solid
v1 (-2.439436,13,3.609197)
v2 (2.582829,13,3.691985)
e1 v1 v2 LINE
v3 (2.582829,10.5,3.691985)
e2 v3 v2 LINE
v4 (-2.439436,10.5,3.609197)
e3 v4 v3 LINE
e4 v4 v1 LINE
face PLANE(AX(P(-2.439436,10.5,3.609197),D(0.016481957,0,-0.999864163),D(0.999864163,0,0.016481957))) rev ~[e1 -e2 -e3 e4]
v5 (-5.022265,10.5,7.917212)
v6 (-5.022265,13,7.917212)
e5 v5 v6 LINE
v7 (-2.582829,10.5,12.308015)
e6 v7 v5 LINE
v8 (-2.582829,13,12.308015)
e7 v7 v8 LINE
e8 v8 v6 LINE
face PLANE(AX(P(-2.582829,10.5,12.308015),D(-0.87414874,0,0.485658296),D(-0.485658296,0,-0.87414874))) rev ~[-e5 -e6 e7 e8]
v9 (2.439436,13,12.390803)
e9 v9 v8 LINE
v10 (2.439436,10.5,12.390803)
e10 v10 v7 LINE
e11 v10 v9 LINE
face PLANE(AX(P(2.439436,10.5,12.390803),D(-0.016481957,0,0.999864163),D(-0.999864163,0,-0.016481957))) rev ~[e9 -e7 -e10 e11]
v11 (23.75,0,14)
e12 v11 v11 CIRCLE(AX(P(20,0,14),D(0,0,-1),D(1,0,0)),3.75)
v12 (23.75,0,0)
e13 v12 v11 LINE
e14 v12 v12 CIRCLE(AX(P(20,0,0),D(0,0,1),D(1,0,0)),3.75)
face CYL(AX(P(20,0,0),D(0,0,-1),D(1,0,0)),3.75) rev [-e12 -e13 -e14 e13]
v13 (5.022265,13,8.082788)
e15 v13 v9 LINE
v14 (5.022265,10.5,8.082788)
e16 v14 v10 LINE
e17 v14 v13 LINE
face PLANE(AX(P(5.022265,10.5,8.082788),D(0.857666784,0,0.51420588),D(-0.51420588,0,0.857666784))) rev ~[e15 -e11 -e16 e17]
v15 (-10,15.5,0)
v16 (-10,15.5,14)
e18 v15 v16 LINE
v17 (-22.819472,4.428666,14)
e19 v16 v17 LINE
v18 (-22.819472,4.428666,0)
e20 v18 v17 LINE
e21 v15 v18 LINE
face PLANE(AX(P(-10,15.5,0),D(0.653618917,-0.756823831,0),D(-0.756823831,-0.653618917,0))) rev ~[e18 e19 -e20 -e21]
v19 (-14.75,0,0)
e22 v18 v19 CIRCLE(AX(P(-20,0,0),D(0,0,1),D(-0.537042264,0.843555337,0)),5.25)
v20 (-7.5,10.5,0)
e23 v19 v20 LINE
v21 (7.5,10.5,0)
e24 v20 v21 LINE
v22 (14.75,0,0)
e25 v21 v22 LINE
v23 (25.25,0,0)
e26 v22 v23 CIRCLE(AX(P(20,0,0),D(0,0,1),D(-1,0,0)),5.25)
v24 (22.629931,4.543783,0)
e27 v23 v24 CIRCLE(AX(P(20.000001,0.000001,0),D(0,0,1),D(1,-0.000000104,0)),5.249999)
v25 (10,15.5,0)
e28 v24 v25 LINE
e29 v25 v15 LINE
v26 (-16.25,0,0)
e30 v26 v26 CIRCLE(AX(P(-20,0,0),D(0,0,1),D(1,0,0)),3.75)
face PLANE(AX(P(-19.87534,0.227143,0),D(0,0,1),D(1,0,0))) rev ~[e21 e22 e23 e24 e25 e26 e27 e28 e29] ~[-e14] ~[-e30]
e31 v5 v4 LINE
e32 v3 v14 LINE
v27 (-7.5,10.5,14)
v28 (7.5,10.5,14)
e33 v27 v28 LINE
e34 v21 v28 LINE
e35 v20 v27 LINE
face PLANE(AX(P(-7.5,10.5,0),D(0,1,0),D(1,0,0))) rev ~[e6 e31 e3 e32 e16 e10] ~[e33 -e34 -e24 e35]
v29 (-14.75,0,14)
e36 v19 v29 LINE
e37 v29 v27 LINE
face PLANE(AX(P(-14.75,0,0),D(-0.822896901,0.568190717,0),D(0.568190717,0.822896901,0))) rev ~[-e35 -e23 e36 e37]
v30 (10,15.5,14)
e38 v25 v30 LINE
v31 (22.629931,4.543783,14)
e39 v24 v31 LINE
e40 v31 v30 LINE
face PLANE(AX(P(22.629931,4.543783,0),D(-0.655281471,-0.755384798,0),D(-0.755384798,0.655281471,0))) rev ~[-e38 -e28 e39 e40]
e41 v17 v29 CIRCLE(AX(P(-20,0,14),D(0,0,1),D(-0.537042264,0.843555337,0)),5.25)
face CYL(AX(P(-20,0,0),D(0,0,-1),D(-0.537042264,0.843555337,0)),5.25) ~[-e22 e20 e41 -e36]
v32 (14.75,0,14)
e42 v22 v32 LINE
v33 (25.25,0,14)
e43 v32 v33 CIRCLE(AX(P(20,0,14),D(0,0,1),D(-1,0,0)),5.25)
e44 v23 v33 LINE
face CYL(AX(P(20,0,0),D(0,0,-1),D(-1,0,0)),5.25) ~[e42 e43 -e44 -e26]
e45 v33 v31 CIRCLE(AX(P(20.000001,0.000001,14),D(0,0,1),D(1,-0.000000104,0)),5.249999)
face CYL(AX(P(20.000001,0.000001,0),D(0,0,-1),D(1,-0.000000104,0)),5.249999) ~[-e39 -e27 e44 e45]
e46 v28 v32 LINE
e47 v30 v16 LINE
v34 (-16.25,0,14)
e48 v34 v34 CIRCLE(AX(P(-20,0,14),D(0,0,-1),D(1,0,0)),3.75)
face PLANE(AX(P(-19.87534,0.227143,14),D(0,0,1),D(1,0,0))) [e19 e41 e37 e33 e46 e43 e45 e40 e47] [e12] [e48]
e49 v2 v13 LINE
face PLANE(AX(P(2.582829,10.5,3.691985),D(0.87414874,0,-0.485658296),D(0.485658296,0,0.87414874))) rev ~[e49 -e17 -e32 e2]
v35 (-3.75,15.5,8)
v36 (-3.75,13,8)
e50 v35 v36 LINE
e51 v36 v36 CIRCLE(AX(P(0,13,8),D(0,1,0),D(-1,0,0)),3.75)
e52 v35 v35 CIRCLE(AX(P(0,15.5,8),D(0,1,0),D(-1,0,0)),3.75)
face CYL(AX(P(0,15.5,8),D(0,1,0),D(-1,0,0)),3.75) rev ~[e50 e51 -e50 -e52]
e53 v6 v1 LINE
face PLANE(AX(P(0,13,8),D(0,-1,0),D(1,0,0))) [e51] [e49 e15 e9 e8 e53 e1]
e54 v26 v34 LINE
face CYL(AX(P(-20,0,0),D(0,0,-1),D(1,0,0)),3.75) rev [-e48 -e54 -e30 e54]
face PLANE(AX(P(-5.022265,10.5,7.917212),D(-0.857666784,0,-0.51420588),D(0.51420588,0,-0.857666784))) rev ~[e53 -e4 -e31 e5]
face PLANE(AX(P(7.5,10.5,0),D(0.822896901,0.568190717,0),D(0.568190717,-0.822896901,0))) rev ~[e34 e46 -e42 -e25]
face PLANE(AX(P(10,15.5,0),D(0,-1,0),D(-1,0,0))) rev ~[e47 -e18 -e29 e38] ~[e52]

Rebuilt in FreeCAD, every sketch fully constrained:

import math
import FreeCAD as App
import Part
import Sketcher
Q = App.Units.Quantity

doc = App.newDocument("Part")
body = doc.addObject("PartDesign::Body", "Body")
body.AllowCompound = True

sketch1 = body.newObject("Sketcher::SketchObject", "Sketch")
sketch1.AttachmentSupport = (doc.getObject("XY_Plane"), [""])
sketch1.MapMode = "FlatFace"
sketch1.addGeometry(Part.Circle(App.Vector(-20, 0, 0), App.Vector(0, 0, 1), 3.8), False)
sketch1.addGeometry(Part.Circle(App.Vector(20, 0, 0), App.Vector(0, 0, 1), 3.8), False)
sketch1.addConstraint(Sketcher.Constraint("Equal", 0, 1))
sketch1.addConstraint(Sketcher.Constraint("Symmetric", 0, 3, 1, 3, -1, 1))
sketch1.addConstraint(Sketcher.Constraint("PointOnObject", 0, 3, -1))
sketch1.addConstraint(Sketcher.Constraint("Diameter", 0, Q("7.5 mm")))
sketch1.addConstraint(Sketcher.Constraint("DistanceX", 0, 3, -1, 1, Q("20 mm")))
pad1 = body.newObject("PartDesign::Pad", "Pad")
pad1.Profile = sketch1
pad1.Length = 25
body2 = doc.addObject("PartDesign::Body", "Body001")

sketch2 = body2.newObject("Sketcher::SketchObject", "Sketch001")
sketch2.AttachmentSupport = (doc.getObject("XY_Plane001"), [""])
sketch2.MapMode = "FlatFace"
sketch2.addGeometry(Part.ArcOfCircle(Part.Circle(App.Vector(-20, 0, 0), App.Vector(0, 0, 1), 5), math.radians(122), math.radians(360)), False)
sketch2.addGeometry(Part.LineSegment(App.Vector(-15, 0, 0), App.Vector(-8, 10, 0)), False)
sketch2.addGeometry(Part.LineSegment(App.Vector(-8, 10, 0), App.Vector(8, 10, 0)), False)
sketch2.addGeometry(Part.LineSegment(App.Vector(8, 10, 0), App.Vector(15, 0, 0)), False)
sketch2.addGeometry(Part.ArcOfCircle(Part.Circle(App.Vector(20, 0, 0), App.Vector(0, 0, 1), 5), math.radians(180), math.radians(360)), False)
sketch2.addGeometry(Part.ArcOfCircle(Part.Circle(App.Vector(20, 0, 0), App.Vector(0, 0, 1), 5), math.radians(0), math.radians(60)), False)
sketch2.addGeometry(Part.LineSegment(App.Vector(23, 5, 0), App.Vector(10, 16, 0)), False)
sketch2.addGeometry(Part.LineSegment(App.Vector(10, 16, 0), App.Vector(-10, 16, 0)), False)
sketch2.addGeometry(Part.LineSegment(App.Vector(-10, 16, 0), App.Vector(-23, 4, 0)), False)
sketch2.addConstraint(Sketcher.Constraint("Coincident", 0, 2, 1, 1))
sketch2.addConstraint(Sketcher.Constraint("Coincident", 1, 2, 2, 1))
sketch2.addConstraint(Sketcher.Constraint("Coincident", 2, 2, 3, 1))
sketch2.addConstraint(Sketcher.Constraint("Coincident", 3, 2, 4, 1))
sketch2.addConstraint(Sketcher.Constraint("Tangent", 4, 2, 5, 1))
sketch2.addConstraint(Sketcher.Constraint("Coincident", 5, 2, 6, 1))
sketch2.addConstraint(Sketcher.Constraint("Coincident", 6, 2, 7, 1))
sketch2.addConstraint(Sketcher.Constraint("Coincident", 7, 2, 8, 1))
sketch2.addConstraint(Sketcher.Constraint("Coincident", 8, 2, 0, 1))
sketch2.addConstraint(Sketcher.Constraint("Horizontal", 2))
sketch2.addConstraint(Sketcher.Constraint("Horizontal", 7))
sketch2.addConstraint(Sketcher.Constraint("Equal", 0, 4))
sketch2.addConstraint(Sketcher.Constraint("Equal", 4, 5))
sketch2.addConstraint(Sketcher.Constraint("Symmetric", 0, 3, 4, 3, -1, 1))
sketch2.addConstraint(Sketcher.Constraint("PointOnObject", 0, 3, -1))
sketch2.addConstraint(Sketcher.Constraint("PointOnObject", 0, 2, -1))
sketch2.addConstraint(Sketcher.Constraint("PointOnObject", 3, 2, -1))
sketch2.addConstraint(Sketcher.Constraint("PointOnObject", 4, 2, -1))
sketch2.addConstraint(Sketcher.Constraint("Equal", 1, 3))
sketch2.addConstraint(Sketcher.Constraint("DistanceX", 2, 1, 2, 2, Q("15 mm")))
sketch2.addConstraint(Sketcher.Constraint("DistanceX", 7, 2, 7, 1, Q("20 mm")))
sketch2.addConstraint(Sketcher.Constraint("Radius", 0, Q("5.25 mm")))
sketch2.addConstraint(Sketcher.Constraint("DistanceX", 0, 3, -1, 1, Q("20 mm")))
sketch2.addConstraint(Sketcher.Constraint("DistanceX", -1, 1, 6, 2, Q("10 mm")))
sketch2.addConstraint(Sketcher.Constraint("DistanceY", 2, 2, 6, 2, Q("5 mm")))
sketch2.addConstraint(Sketcher.Constraint("DistanceY", -1, 1, 1, 2, Q("10.5 mm")))
sketch2.addConstraint(Sketcher.Constraint("DistanceX", -1, 1, 5, 2, Q("22.629931 mm")))
sketch2.addConstraint(Sketcher.Constraint("DistanceX", 8, 2, 0, 3, Q("2.819472 mm")))
pad2 = body2.newObject("PartDesign::Pad", "Pad001")
pad2.Profile = sketch2
pad2.Length = 14
body3 = doc.addObject("PartDesign::Body", "Body002")

sketch3 = body3.newObject("Sketcher::SketchObject", "Sketch002")
sketch3.AttachmentSupport = (doc.getObject("XZ_Plane002"), [""])
sketch3.MapMode = "FlatFace"
sketch3.AttachmentOffset = App.Placement(App.Vector(0, 0, -15.5), App.Rotation())
sketch3.addGeometry(Part.Circle(App.Vector(0, 8, 0), App.Vector(0, 0, 1), 3.8), False)
sketch3.addConstraint(Sketcher.Constraint("PointOnObject", 0, 3, -2))
sketch3.addConstraint(Sketcher.Constraint("Diameter", 0, Q("7.5 mm")))
sketch3.addConstraint(Sketcher.Constraint("DistanceY", -1, 1, 0, 3, Q("8 mm")))
pad3 = body3.newObject("PartDesign::Pad", "Pad002")
pad3.Profile = sketch3
pad3.Length = 25
body4 = doc.addObject("PartDesign::Body", "Body003")

sketch4 = body4.newObject("Sketcher::SketchObject", "Sketch003")
sketch4.AttachmentSupport = (doc.getObject("XZ_Plane003"), [""])
sketch4.MapMode = "FlatFace"
sketch4.AttachmentOffset = App.Placement(App.Vector(0, 0, -10.5), App.Rotation())
sketch4.addGeometry(Part.LineSegment(App.Vector(3, 4, 0), App.Vector(5, 8, 0)), False)
sketch4.addGeometry(Part.LineSegment(App.Vector(5, 8, 0), App.Vector(2, 12, 0)), False)
sketch4.addGeometry(Part.LineSegment(App.Vector(2, 12, 0), App.Vector(-3, 12, 0)), False)
sketch4.addGeometry(Part.LineSegment(App.Vector(-3, 12, 0), App.Vector(-5, 8, 0)), False)
sketch4.addGeometry(Part.LineSegment(App.Vector(-5, 8, 0), App.Vector(-2, 4, 0)), False)
sketch4.addGeometry(Part.LineSegment(App.Vector(-2, 4, 0), App.Vector(3, 4, 0)), False)
sketch4.addConstraint(Sketcher.Constraint("Coincident", 0, 2, 1, 1))
sketch4.addConstraint(Sketcher.Constraint("Coincident", 1, 2, 2, 1))
sketch4.addConstraint(Sketcher.Constraint("Coincident", 2, 2, 3, 1))
sketch4.addConstraint(Sketcher.Constraint("Coincident", 3, 2, 4, 1))
sketch4.addConstraint(Sketcher.Constraint("Coincident", 4, 2, 5, 1))
sketch4.addConstraint(Sketcher.Constraint("Coincident", 5, 2, 0, 1))
sketch4.addConstraint(Sketcher.Constraint("Parallel", 0, 3))
sketch4.addConstraint(Sketcher.Constraint("Parallel", 1, 4))
sketch4.addConstraint(Sketcher.Constraint("Parallel", 2, 5))
sketch4.addConstraint(Sketcher.Constraint("Equal", 0, 1))
sketch4.addConstraint(Sketcher.Constraint("Equal", 1, 2))
sketch4.addConstraint(Sketcher.Constraint("Equal", 2, 3))
sketch4.addConstraint(Sketcher.Constraint("DistanceX", 3, 2, 1, 2, Q("7.461701 mm")))
sketch4.addConstraint(Sketcher.Constraint("DistanceY", -1, 1, 0, 2, Q("8.082788 mm")))
sketch4.addConstraint(Sketcher.Constraint("DistanceX", 2, 2, -1, 1, Q("2.582829 mm")))
sketch4.addConstraint(Sketcher.Constraint("DistanceX", -1, 1, 5, 2, Q("2.582829 mm")))
sketch4.addConstraint(Sketcher.Constraint("DistanceX", 1, 2, 0, 2, Q("2.582829 mm")))
sketch4.addConstraint(Sketcher.Constraint("DistanceY", 2, 2, 1, 2, Q("0.082788 mm")))
pad4 = body4.newObject("PartDesign::Pad", "Pad003")
pad4.Profile = sketch4
pad4.Length = 2.5
pad4.Reversed = True
doc.recompute()

boolean = body2.newObject("PartDesign::Boolean", "Boolean")
boolean.Type = "Cut"
boolean.addObjects([body])
doc.recompute()

boolean2 = body2.newObject("PartDesign::Boolean", "Boolean001")
boolean2.Type = "Cut"
boolean2.addObjects([body3])
doc.recompute()

boolean3 = body2.newObject("PartDesign::Boolean", "Boolean002")
boolean3.Type = "Cut"
boolean3.addObjects([body4])

doc.recompute()
